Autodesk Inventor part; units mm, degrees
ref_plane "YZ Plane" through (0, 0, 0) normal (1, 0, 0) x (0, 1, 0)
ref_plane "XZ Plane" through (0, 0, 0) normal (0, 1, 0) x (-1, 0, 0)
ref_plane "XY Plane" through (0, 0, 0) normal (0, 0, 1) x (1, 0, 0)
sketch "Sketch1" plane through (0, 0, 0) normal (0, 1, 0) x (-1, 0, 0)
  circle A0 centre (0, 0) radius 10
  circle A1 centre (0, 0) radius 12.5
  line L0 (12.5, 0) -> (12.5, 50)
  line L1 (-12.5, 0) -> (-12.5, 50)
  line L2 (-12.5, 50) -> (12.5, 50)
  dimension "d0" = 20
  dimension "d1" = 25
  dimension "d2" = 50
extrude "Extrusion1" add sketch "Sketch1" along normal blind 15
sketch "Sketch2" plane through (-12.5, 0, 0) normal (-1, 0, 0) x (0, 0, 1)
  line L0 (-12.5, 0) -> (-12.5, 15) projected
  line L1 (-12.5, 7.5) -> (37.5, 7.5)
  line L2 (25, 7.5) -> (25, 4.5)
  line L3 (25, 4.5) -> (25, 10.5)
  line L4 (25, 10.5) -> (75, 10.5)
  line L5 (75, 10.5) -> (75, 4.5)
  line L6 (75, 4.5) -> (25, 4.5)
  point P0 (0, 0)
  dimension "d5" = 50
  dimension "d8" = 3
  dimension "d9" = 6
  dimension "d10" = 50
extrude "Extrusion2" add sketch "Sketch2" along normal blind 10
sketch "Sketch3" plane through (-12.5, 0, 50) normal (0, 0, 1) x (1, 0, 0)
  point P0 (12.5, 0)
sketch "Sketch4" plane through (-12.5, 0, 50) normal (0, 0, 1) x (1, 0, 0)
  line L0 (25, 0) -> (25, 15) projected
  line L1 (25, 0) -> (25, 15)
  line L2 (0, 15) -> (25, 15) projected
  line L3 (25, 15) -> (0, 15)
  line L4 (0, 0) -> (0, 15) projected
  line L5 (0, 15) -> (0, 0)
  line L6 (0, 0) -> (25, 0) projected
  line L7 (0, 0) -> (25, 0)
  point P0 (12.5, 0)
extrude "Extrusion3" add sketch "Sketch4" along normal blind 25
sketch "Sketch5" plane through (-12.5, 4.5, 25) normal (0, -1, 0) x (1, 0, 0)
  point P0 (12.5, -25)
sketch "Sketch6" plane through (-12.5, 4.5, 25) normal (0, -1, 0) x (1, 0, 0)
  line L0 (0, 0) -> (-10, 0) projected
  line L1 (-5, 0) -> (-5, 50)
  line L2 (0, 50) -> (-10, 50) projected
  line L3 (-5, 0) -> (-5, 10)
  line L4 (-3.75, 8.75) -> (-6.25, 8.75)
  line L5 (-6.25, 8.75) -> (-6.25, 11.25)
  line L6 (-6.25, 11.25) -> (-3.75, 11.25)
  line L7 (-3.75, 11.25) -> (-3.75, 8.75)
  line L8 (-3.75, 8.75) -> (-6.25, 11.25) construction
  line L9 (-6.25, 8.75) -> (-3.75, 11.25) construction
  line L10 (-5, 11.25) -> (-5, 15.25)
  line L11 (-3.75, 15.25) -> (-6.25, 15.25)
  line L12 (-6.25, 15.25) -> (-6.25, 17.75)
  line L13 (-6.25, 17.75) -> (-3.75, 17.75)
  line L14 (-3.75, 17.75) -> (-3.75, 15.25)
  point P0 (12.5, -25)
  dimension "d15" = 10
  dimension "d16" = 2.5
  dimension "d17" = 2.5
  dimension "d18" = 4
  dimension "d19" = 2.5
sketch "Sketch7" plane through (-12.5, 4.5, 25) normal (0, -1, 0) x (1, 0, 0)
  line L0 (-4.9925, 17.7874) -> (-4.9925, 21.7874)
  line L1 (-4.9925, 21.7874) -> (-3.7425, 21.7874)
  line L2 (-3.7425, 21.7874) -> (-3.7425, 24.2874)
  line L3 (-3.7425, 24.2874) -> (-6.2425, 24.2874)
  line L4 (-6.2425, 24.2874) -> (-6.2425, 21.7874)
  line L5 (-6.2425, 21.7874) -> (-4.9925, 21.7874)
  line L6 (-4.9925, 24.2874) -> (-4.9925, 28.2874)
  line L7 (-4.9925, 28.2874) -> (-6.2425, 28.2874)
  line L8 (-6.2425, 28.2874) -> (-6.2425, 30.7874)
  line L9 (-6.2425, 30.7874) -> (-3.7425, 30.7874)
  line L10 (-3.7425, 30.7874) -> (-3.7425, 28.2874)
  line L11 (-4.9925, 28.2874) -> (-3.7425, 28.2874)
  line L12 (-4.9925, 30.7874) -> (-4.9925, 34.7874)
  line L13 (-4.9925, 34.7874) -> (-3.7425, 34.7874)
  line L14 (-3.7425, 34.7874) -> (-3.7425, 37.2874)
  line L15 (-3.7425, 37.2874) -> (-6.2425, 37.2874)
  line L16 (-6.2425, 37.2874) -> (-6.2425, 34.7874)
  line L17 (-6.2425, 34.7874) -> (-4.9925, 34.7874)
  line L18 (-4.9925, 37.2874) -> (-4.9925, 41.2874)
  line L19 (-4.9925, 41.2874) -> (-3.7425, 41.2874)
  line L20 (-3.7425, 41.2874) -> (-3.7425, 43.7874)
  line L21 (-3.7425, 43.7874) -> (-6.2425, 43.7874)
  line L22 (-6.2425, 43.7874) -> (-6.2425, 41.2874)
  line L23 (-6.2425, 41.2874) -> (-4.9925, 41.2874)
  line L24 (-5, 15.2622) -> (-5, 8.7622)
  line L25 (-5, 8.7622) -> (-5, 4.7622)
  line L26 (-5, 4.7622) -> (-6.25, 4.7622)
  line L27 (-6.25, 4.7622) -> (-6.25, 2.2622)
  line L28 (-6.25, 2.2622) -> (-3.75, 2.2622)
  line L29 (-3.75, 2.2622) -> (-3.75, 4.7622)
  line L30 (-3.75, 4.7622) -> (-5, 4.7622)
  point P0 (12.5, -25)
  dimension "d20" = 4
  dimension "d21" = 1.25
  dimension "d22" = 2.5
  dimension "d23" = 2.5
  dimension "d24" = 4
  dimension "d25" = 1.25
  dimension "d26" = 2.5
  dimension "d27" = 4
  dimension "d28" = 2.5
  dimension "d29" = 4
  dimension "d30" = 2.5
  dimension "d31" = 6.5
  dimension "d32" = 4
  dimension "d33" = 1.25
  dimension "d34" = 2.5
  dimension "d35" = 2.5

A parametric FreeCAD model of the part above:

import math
import FreeCAD as App
import Part
import Sketcher
from FreeCAD import Vector


def add_polygon(sketch, points):
    """Adds a closed chain of lines whose ends are joined by coincident constraints."""
    first, n = sketch.GeometryCount, len(points)
    for a, b in zip(points, points[1:] + points[:1]):
        sketch.addGeometry(Part.LineSegment(App.Vector(*a, 0), App.Vector(*b, 0)), False)
    for i in range(n):
        sketch.addConstraint(Sketcher.Constraint("Coincident", first + i, 2, first + (i + 1) % n, 1))

doc = App.newDocument("Part")
body = doc.addObject("PartDesign::Body", "Body")

sketch1 = doc.addObject("Sketcher::SketchObject", "Sketch")
body.addObject(sketch1)
sketch1.AttachmentSupport = (doc.XZ_Plane, [""])
sketch1.MapMode = "FlatFace"
sketch1.addGeometry(Part.ArcOfCircle(Part.Circle(Vector(0, 0, 0), Vector(0, 0, 1), 12), math.radians(180), math.radians(360)), False)
sketch1.addGeometry(Part.LineSegment(Vector(-12, 0, 0), Vector(-12, 50, 0)), False)
sketch1.addGeometry(Part.LineSegment(Vector(-12, 50, 0), Vector(12, 50, 0)), False)
sketch1.addGeometry(Part.LineSegment(Vector(12, 50, 0), Vector(12, 0, 0)), False)
sketch1.addGeometry(Part.Circle(Vector(0, 0, 0), Vector(0, 0, 1), 10), False)
sketch1.addConstraint(Sketcher.Constraint("Tangent", 0, 1, 1, 1))
sketch1.addConstraint(Sketcher.Constraint("Coincident", 1, 2, 2, 1))
sketch1.addConstraint(Sketcher.Constraint("Coincident", 2, 2, 3, 1))
sketch1.addConstraint(Sketcher.Constraint("Tangent", 3, 2, 0, 2))
sketch1.addConstraint(Sketcher.Constraint("Vertical", 1))
sketch1.addConstraint(Sketcher.Constraint("Horizontal", 2))
sketch1.addConstraint(Sketcher.Constraint("Vertical", 3))
sketch1.addConstraint(Sketcher.Constraint("Coincident", 0, 3, -1, 1))
sketch1.addConstraint(Sketcher.Constraint("Coincident", 4, 3, -1, 1))
sketch1.addConstraint(Sketcher.Constraint("Diameter", 4, 20.0))
sketch1.addConstraint(Sketcher.Constraint("Radius", 0, 12.5))
sketch1.addConstraint(Sketcher.Constraint("DistanceY", 1, 1, 1, 2, 50.0))
pad1 = doc.addObject("PartDesign::Pad", "Pad")
body.addObject(pad1)
pad1.Profile = sketch1
pad1.Length = 15
pad1.Reversed = True

sketch2 = doc.addObject("Sketcher::SketchObject", "Sketch001")
body.addObject(sketch2)
sketch2.AttachmentSupport = (doc.YZ_Plane, [""])
sketch2.MapMode = "FlatFace"
sketch2.AttachmentOffset = App.Placement(Vector(0, 0, -12.5), App.Rotation())
add_polygon(sketch2, [(10, 25), (4, 25), (4, 75), (10, 75)])
sketch2.addConstraint(Sketcher.Constraint("Horizontal", 0))
sketch2.addConstraint(Sketcher.Constraint("Vertical", 1))
sketch2.addConstraint(Sketcher.Constraint("Horizontal", 2))
sketch2.addConstraint(Sketcher.Constraint("Vertical", 3))
sketch2.addConstraint(Sketcher.Constraint("DistanceX", 0, 2, 0, 1, 6.0))
sketch2.addConstraint(Sketcher.Constraint("DistanceY", 1, 1, 1, 2, 50.0))
sketch2.addConstraint(Sketcher.Constraint("DistanceY", -1, 1, 0, 2, 25.0))
sketch2.addConstraint(Sketcher.Constraint("DistanceX", -1, 1, 0, 2, 4.5))
pad2 = doc.addObject("PartDesign::Pad", "Pad001")
body.addObject(pad2)
pad2.Profile = sketch2
pad2.Length = 10
pad2.Reversed = True

sketch3 = doc.addObject("Sketcher::SketchObject", "Sketch002")
body.addObject(sketch3)
sketch3.AttachmentSupport = (doc.XY_Plane, [""])
sketch3.MapMode = "FlatFace"
sketch3.AttachmentOffset = App.Placement(Vector(0, 0, 50), App.Rotation())
add_polygon(sketch3, [(-12, 0), (12, 0), (12, 15), (-12, 15)])
sketch3.addConstraint(Sketcher.Constraint("Horizontal", 0))
sketch3.addConstraint(Sketcher.Constraint("Vertical", 1))
sketch3.addConstraint(Sketcher.Constraint("Horizontal", 2))
sketch3.addConstraint(Sketcher.Constraint("Vertical", 3))
sketch3.addConstraint(Sketcher.Constraint("Symmetric", 0, 2, 3, 2, -1, 1))
sketch3.addConstraint(Sketcher.Constraint("DistanceX", 0, 1, 0, 2, 25.0))
sketch3.addConstraint(Sketcher.Constraint("DistanceY", 1, 1, 1, 2, 15.0))
pad3 = doc.addObject("PartDesign::Pad", "Pad002")
body.addObject(pad3)
pad3.Profile = sketch3
pad3.Length = 25

doc.recompute()
